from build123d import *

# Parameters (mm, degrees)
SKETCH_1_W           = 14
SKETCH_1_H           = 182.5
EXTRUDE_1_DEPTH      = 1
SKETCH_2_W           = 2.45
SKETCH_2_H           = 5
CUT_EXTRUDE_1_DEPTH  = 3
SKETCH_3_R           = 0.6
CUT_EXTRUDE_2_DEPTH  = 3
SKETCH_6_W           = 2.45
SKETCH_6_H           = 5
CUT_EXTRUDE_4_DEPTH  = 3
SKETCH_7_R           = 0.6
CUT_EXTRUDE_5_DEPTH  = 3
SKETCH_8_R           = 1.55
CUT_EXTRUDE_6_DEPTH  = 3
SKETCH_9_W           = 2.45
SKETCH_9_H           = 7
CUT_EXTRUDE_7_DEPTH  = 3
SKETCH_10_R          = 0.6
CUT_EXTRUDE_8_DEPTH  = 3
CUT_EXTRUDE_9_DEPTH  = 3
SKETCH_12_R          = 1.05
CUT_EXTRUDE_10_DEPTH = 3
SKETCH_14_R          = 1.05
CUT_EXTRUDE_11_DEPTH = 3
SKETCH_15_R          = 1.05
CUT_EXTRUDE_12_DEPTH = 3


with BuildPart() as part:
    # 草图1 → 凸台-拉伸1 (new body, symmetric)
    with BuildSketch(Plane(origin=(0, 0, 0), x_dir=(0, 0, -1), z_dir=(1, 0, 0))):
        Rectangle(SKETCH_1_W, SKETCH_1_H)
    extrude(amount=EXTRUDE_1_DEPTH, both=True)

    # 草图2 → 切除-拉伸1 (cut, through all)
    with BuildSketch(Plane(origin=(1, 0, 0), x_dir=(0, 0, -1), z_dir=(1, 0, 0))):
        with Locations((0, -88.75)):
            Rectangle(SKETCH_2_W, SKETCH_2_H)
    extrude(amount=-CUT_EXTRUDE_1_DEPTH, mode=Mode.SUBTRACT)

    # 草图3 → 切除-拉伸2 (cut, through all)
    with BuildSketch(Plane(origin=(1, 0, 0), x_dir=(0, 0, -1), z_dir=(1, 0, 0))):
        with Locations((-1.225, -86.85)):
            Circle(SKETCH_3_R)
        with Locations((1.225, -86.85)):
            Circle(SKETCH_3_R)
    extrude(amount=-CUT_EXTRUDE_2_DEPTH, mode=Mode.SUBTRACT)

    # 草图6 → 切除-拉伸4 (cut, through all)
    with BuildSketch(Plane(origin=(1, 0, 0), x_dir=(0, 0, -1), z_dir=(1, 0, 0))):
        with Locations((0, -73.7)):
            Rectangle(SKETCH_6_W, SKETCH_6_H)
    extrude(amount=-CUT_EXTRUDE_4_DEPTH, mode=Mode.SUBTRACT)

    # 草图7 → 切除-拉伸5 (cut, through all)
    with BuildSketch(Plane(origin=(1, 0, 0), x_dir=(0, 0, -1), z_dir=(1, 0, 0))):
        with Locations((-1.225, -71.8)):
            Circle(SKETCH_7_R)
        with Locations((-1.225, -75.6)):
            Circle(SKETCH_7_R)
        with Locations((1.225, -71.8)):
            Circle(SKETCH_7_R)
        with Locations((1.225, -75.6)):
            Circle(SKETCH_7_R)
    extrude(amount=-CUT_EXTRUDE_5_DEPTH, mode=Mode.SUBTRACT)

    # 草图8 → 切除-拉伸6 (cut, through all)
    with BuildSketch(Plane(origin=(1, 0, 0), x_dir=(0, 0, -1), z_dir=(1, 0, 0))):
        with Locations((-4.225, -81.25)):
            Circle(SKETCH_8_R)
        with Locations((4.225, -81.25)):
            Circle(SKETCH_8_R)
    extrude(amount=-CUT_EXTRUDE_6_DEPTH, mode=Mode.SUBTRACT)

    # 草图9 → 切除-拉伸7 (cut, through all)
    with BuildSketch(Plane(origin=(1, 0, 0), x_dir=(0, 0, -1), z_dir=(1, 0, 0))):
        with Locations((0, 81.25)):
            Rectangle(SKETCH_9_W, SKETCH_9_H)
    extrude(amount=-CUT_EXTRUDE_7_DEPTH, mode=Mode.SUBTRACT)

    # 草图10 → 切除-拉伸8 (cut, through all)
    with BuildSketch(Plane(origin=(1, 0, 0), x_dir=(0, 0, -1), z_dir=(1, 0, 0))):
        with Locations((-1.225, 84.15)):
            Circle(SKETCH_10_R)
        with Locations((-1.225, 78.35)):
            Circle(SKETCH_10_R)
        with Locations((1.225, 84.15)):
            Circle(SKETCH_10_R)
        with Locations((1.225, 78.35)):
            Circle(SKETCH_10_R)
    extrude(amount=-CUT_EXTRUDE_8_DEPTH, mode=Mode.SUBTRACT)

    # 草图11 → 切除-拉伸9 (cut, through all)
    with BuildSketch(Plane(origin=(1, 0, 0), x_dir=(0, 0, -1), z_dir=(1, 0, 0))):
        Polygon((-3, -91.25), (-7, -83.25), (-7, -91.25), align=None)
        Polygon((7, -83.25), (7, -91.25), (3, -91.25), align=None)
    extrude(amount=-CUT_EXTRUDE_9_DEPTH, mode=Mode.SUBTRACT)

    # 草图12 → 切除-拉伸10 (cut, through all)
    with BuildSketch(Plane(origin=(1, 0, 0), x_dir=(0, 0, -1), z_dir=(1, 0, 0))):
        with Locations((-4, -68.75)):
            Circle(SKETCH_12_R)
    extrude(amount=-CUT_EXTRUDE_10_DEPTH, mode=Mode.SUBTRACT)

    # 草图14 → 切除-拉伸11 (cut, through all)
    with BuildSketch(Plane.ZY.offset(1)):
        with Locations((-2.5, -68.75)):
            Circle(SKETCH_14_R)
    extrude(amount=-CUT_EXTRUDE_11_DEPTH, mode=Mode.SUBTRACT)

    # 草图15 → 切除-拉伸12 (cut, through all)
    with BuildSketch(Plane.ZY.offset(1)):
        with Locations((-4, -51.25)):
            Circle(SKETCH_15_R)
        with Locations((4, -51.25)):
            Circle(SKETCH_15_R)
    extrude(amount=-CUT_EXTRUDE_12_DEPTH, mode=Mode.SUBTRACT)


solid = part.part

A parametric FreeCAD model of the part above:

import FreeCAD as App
import Part
import Sketcher

V = App.Vector

doc = App.newDocument("Part")
body = doc.addObject("PartDesign::Body", "Body")

# Sketch on YZ plane
sketch1 = doc.addObject("Sketcher::SketchObject", "Sketch")
body.addObject(sketch1)
sketch1.AttachmentSupport = (doc.YZ_Plane, [""])
sketch1.MapMode = "FlatFace"
sketch1.addGeometry([
    Part.LineSegment(V(91, 7, 0), V(-91, 7, 0)),
    Part.LineSegment(V(-91, 7, 0), V(-91, -7, 0)),
    Part.LineSegment(V(-91, -7, 0), V(91, -7, 0)),
    Part.LineSegment(V(91, -7, 0), V(91, 7, 0)),
], False)
sketch1.addConstraint([
    Sketcher.Constraint("Coincident", 0, 2, 1, 1),
    Sketcher.Constraint("Coincident", 1, 2, 2, 1),
    Sketcher.Constraint("Coincident", 2, 2, 3, 1),
    Sketcher.Constraint("Coincident", 3, 2, 0, 1),
    Sketcher.Constraint("Horizontal", 0),
    Sketcher.Constraint("Vertical", 1),
    Sketcher.Constraint("Horizontal", 2),
    Sketcher.Constraint("Vertical", 3),
    Sketcher.Constraint("Symmetric", 0, 2, 2, 2, -1, 1),
    Sketcher.Constraint("DistanceY", 1, 2, 1, 1, 14.0),
    Sketcher.Constraint("DistanceX", 0, 2, 0, 1, 182.5),
])
pad1 = doc.addObject("PartDesign::Pad", "Pad")
body.addObject(pad1)
pad1.Profile = sketch1
pad1.Length = 2
pad1.Midplane = True

# Sketch on YZ plane
sketch2 = doc.addObject("Sketcher::SketchObject", "Sketch001")
body.addObject(sketch2)
sketch2.AttachmentSupport = (doc.YZ_Plane, [""])
sketch2.MapMode = "FlatFace"
sketch2.AttachmentOffset = App.Placement(V(0, 0, 1), App.Rotation())
sketch2.addGeometry([
    Part.LineSegment(V(-86.2, 1.2, 0), V(-91.2, 1.2, 0)),
    Part.LineSegment(V(-91.2, 1.2, 0), V(-91.2, -1.2, 0)),
    Part.LineSegment(V(-91.2, -1.2, 0), V(-86.2, -1.2, 0)),
    Part.LineSegment(V(-86.2, -1.2, 0), V(-86.2, 1.2, 0)),
], False)
sketch2.addConstraint([
    Sketcher.Constraint("Coincident", 0, 2, 1, 1),
    Sketcher.Constraint("Coincident", 1, 2, 2, 1),
    Sketcher.Constraint("Coincident", 2, 2, 3, 1),
    Sketcher.Constraint("Coincident", 3, 2, 0, 1),
    Sketcher.Constraint("Horizontal", 0),
    Sketcher.Constraint("Vertical", 1),
    Sketcher.Constraint("Horizontal", 2),
    Sketcher.Constraint("Vertical", 3),
    Sketcher.Constraint("DistanceX", 0, 2, 0, 1, 5.0),
    Sketcher.Constraint("DistanceY", 1, 2, 1, 1, 2.45),
    Sketcher.Constraint("DistanceX", 0, 2, -1, 1, 91.25),
    Sketcher.Constraint("DistanceY", -1, 1, 0, 2, 1.225),
])
pocket1 = doc.addObject("PartDesign::Pocket", "Pocket")
body.addObject(pocket1)
pocket1.Profile = sketch2
pocket1.Type = "ThroughAll"

# Sketch on YZ plane
sketch3 = doc.addObject("Sketcher::SketchObject", "Sketch002")
body.addObject(sketch3)
sketch3.AttachmentSupport = (doc.YZ_Plane, [""])
sketch3.MapMode = "FlatFace"
sketch3.AttachmentOffset = App.Placement(V(0, 0, 1), App.Rotation())
sketch3.addGeometry([
    Part.Circle(V(-86.8, 1.2, 0), V(0, 0, 1), 0.6),
    Part.Circle(V(-86.8, -1.2, 0), V(0, 0, 1), 0.6),
], False)
sketch3.addConstraint([
    Sketcher.Constraint("Equal", 0, 1),
    Sketcher.Constraint("Symmetric", 0, 3, 1, 3, -1),
    Sketcher.Constraint("Diameter", 0, 1.2),
    Sketcher.Constraint("DistanceX", 0, 3, -1, 1, 86.85),
    Sketcher.Constraint("DistanceY", 1, 3, 0, 3, 2.45),
])
pocket2 = doc.addObject("PartDesign::Pocket", "Pocket001")
body.addObject(pocket2)
pocket2.Profile = sketch3
pocket2.Type = "ThroughAll"

# Sketch on YZ plane
sketch4 = doc.addObject("Sketcher::SketchObject", "Sketch003")
body.addObject(sketch4)
sketch4.AttachmentSupport = (doc.YZ_Plane, [""])
sketch4.MapMode = "FlatFace"
sketch4.AttachmentOffset = App.Placement(V(0, 0, 1), App.Rotation())
sketch4.addGeometry([
    Part.LineSegment(V(-71.2, 1.2, 0), V(-76.2, 1.2, 0)),
    Part.LineSegment(V(-76.2, 1.2, 0), V(-76.2, -1.2, 0)),
    Part.LineSegment(V(-76.2, -1.2, 0), V(-71.2, -1.2, 0)),
    Part.LineSegment(V(-71.2, -1.2, 0), V(-71.2, 1.2, 0)),
], False)
sketch4.addConstraint([
    Sketcher.Constraint("Coincident", 0, 2, 1, 1),
    Sketcher.Constraint("Coincident", 1, 2, 2, 1),
    Sketcher.Constraint("Coincident", 2, 2, 3, 1),
    Sketcher.Constraint("Coincident", 3, 2, 0, 1),
    Sketcher.Constraint("Horizontal", 0),
    Sketcher.Constraint("Vertical", 1),
    Sketcher.Constraint("Horizontal", 2),
    Sketcher.Constraint("Vertical", 3),
    Sketcher.Constraint("DistanceX", 0, 2, 0, 1, 5.0),
    Sketcher.Constraint("DistanceY", 1, 2, 1, 1, 2.45),
    Sketcher.Constraint("DistanceX", 0, 2, -1, 1, 76.2),
    Sketcher.Constraint("DistanceY", -1, 1, 0, 2, 1.225),
])
pocket3 = doc.addObject("PartDesign::Pocket", "Pocket002")
body.addObject(pocket3)
pocket3.Profile = sketch4
pocket3.Type = "ThroughAll"

# Sketch on YZ plane
sketch5 = doc.addObject("Sketcher::SketchObject", "Sketch004")
body.addObject(sketch5)
sketch5.AttachmentSupport = (doc.YZ_Plane, [""])
sketch5.MapMode = "FlatFace"
sketch5.AttachmentOffset = App.Placement(V(0, 0, 1), App.Rotation())
sketch5.addGeometry([
    Part.Circle(V(-71.8, 1.2, 0), V(0, 0, 1), 0.6),
    Part.Circle(V(-75.6, 1.2, 0), V(0, 0, 1), 0.6),
    Part.Circle(V(-71.8, -1.2, 0), V(0, 0, 1), 0.6),
    Part.Circle(V(-75.6, -1.2, 0), V(0, 0, 1), 0.6),
], False)
sketch5.addConstraint([
    Sketcher.Constraint("Equal", 0, 1),
    Sketcher.Constraint("Equal", 1, 2),
    Sketcher.Constraint("Equal", 2, 3),
    Sketcher.Constraint("Symmetric", 0, 3, 2, 3, -1),
    Sketcher.Constraint("Symmetric", 1, 3, 3, 3, -1),
    Sketcher.Constraint("Horizontal", 0, 3, 1, 3),
    Sketcher.Constraint("Diameter", 0, 1.2),
    Sketcher.Constraint("DistanceX", 0, 3, -1, 1, 71.8),
    Sketcher.Constraint("DistanceX", 1, 3, -1, 1, 75.6),
    Sketcher.Constraint("DistanceY", 2, 3, 0, 3, 2.45),
])
pocket4 = doc.addObject("PartDesign::Pocket", "Pocket003")
body.addObject(pocket4)
pocket4.Profile = sketch5
pocket4.Type = "ThroughAll"

# Sketch on YZ plane
sketch6 = doc.addObject("Sketcher::SketchObject", "Sketch005")
body.addObject(sketch6)
sketch6.AttachmentSupport = (doc.YZ_Plane, [""])
sketch6.MapMode = "FlatFace"
sketch6.AttachmentOffset = App.Placement(V(0, 0, 1), App.Rotation())
sketch6.addGeometry([
    Part.Circle(V(-81.2, 4.2, 0), V(0, 0, 1), 1.6),
    Part.Circle(V(-81.2, -4.2, 0), V(0, 0, 1), 1.6),
], False)
sketch6.addConstraint([
    Sketcher.Constraint("Equal", 0, 1),
    Sketcher.Constraint("Symmetric", 0, 3, 1, 3, -1),
    Sketcher.Constraint("Diameter", 0, 3.1),
    Sketcher.Constraint("DistanceX", 0, 3, -1, 1, 81.25),
    Sketcher.Constraint("DistanceY", 1, 3, 0, 3, 8.45),
])
pocket5 = doc.addObject("PartDesign::Pocket", "Pocket004")
body.addObject(pocket5)
pocket5.Profile = sketch6
pocket5.Type = "ThroughAll"

# Sketch on YZ plane
sketch7 = doc.addObject("Sketcher::SketchObject", "Sketch006")
body.addObject(sketch7)
sketch7.AttachmentSupport = (doc.YZ_Plane, [""])
sketch7.MapMode = "FlatFace"
sketch7.AttachmentOffset = App.Placement(V(0, 0, 1), App.Rotation())
sketch7.addGeometry([
    Part.LineSegment(V(84.8, 1.2, 0), V(77.8, 1.2, 0)),
    Part.LineSegment(V(77.8, 1.2, 0), V(77.8, -1.2, 0)),
    Part.LineSegment(V(77.8, -1.2, 0), V(84.8, -1.2, 0)),
    Part.LineSegment(V(84.8, -1.2, 0), V(84.8, 1.2, 0)),
], False)
sketch7.addConstraint([
    Sketcher.Constraint("Coincident", 0, 2, 1, 1),
    Sketcher.Constraint("Coincident", 1, 2, 2, 1),
    Sketcher.Constraint("Coincident", 2, 2, 3, 1),
    Sketcher.Constraint("Coincident", 3, 2, 0, 1),
    Sketcher.Constraint("Horizontal", 0),
    Sketcher.Constraint("Vertical", 1),
    Sketcher.Constraint("Horizontal", 2),
    Sketcher.Constraint("Vertical", 3),
    Sketcher.Constraint("DistanceX", 0, 2, 0, 1, 7.0),
    Sketcher.Constraint("DistanceY", 1, 2, 1, 1, 2.45),
    Sketcher.Constraint("DistanceX", -1, 1, 0, 2, 77.75),
    Sketcher.Constraint("DistanceY", -1, 1, 0, 2, 1.225),
])
pocket6 = doc.addObject("PartDesign::Pocket", "Pocket005")
body.addObject(pocket6)
pocket6.Profile = sketch7
pocket6.Type = "ThroughAll"

# Sketch on YZ plane
sketch8 = doc.addObject("Sketcher::SketchObject", "Sketch007")
body.addObject(sketch8)
sketch8.AttachmentSupport = (doc.YZ_Plane, [""])
sketch8.MapMode = "FlatFace"
sketch8.AttachmentOffset = App.Placement(V(0, 0, 1), App.Rotation())
sketch8.addGeometry([
    Part.Circle(V(84.2, 1.2, 0), V(0, 0, 1), 0.6),
    Part.Circle(V(78.3, 1.2, 0), V(0, 0, 1), 0.6),
    Part.Circle(V(84.2, -1.2, 0), V(0, 0, 1), 0.6),
    Part.Circle(V(78.3, -1.2, 0), V(0, 0, 1), 0.6),
], False)
sketch8.addConstraint([
    Sketcher.Constraint("Equal", 0, 1),
    Sketcher.Constraint("Equal", 1, 2),
    Sketcher.Constraint("Equal", 2, 3),
    Sketcher.Constraint("Symmetric", 0, 3, 2, 3, -1),
    Sketcher.Constraint("Symmetric", 1, 3, 3, 3, -1),
    Sketcher.Constraint("Horizontal", 0, 3, 1, 3),
    Sketcher.Constraint("Diameter", 0, 1.2),
    Sketcher.Constraint("DistanceX", 1, 3, 0, 3, 5.8),
    Sketcher.Constraint("DistanceX", -1, 1, 0, 3, 84.15),
    Sketcher.Constraint("DistanceY", 2, 3, 0, 3, 2.45),
])
pocket7 = doc.addObject("PartDesign::Pocket", "Pocket006")
body.addObject(pocket7)
pocket7.Profile = sketch8
pocket7.Type = "ThroughAll"

# Sketch on YZ plane
sketch9 = doc.addObject("Sketcher::SketchObject", "Sketch008")
body.addObject(sketch9)
sketch9.AttachmentSupport = (doc.YZ_Plane, [""])
sketch9.MapMode = "FlatFace"
sketch9.AttachmentOffset = App.Placement(V(0, 0, 1), App.Rotation())
sketch9.addGeometry([
    Part.LineSegment(V(-91.2, 3, 0), V(-83.2, 7, 0)),  # 0
    Part.LineSegment(V(-83.2, 7, 0), V(-91.2, 7, 0)),  # 1
    Part.LineSegment(V(-91.2, 7, 0), V(-91.2, 3, 0)),  # 2
    Part.LineSegment(V(-91.2, -7, 0), V(-83.2, -7, 0)),  # 3
    Part.LineSegment(V(-83.2, -7, 0), V(-91.2, -3, 0)),  # 4
    Part.LineSegment(V(-91.2, -3, 0), V(-91.2, -7, 0)),  # 5
], False)
sketch9.addConstraint([
    Sketcher.Constraint("Coincident", 0, 2, 1, 1),
    Sketcher.Constraint("Coincident", 1, 2, 2, 1),
    Sketcher.Constraint("Coincident", 2, 2, 0, 1),
    Sketcher.Constraint("Coincident", 3, 2, 4, 1),
    Sketcher.Constraint("Coincident", 4, 2, 5, 1),
    Sketcher.Constraint("Coincident", 5, 2, 3, 1),
    Sketcher.Constraint("Horizontal", 1),
    Sketcher.Constraint("Vertical", 2),
    Sketcher.Constraint("Horizontal", 3),
    Sketcher.Constraint("Vertical", 5),
    Sketcher.Constraint("Symmetric", 0, 2, 3, 2, -1),
    Sketcher.Constraint("Symmetric", 2, 2, 4, 2, -1),
    Sketcher.Constraint("DistanceX", 1, 2, 1, 1, 8.0),
    Sketcher.Constraint("DistanceY", 2, 2, 2, 1, 4.0),
    Sketcher.Constraint("DistanceY", -1, 1, 0, 2, 7.0),
    Sketcher.Constraint("DistanceX", 0, 2, -1, 1, 83.25),
])
pocket8 = doc.addObject("PartDesign::Pocket", "Pocket007")
body.addObject(pocket8)
pocket8.Profile = sketch9
pocket8.Type = "ThroughAll"

# Sketch on YZ plane
sketch10 = doc.addObject("Sketcher::SketchObject", "Sketch009")
body.addObject(sketch10)
sketch10.AttachmentSupport = (doc.YZ_Plane, [""])
sketch10.MapMode = "FlatFace"
sketch10.AttachmentOffset = App.Placement(V(0, 0, 1), App.Rotation())
sketch10.addGeometry(Part.Circle(V(-68.8, 4, 0), V(0, 0, 1), 1.1), False)
sketch10.addConstraint([
    Sketcher.Constraint("Diameter", 0, 2.1),
    Sketcher.Constraint("DistanceY", -1, 1, 0, 3, 4.0),
    Sketcher.Constraint("DistanceX", 0, 3, -1, 1, 68.75),
])
pocket9 = doc.addObject("PartDesign::Pocket", "Pocket008")
body.addObject(pocket9)
pocket9.Profile = sketch10
pocket9.Type = "ThroughAll"

# Sketch on YZ plane
sketch11 = doc.addObject("Sketcher::SketchObject", "Sketch010")
body.addObject(sketch11)
sketch11.AttachmentSupport = (doc.YZ_Plane, [""])
sketch11.MapMode = "FlatFace"
sketch11.AttachmentOffset = App.Placement(V(0, 0, -1), App.Rotation())
sketch11.addGeometry(Part.Circle(V(-68.8, -2.5, 0), V(0, 0, 1), 1.1), False)
sketch11.addConstraint([
    Sketcher.Constraint("Diameter", 0, 2.1),
    Sketcher.Constraint("DistanceY", 0, 3, -1, 1, 2.5),
    Sketcher.Constraint("DistanceX", 0, 3, -1, 1, 68.75),
])
pocket10 = doc.addObject("PartDesign::Pocket", "Pocket009")
body.addObject(pocket10)
pocket10.Profile = sketch11
pocket10.Type = "ThroughAll"
pocket10.Reversed = True

# Sketch on YZ plane
sketch12 = doc.addObject("Sketcher::SketchObject", "Sketch011")
body.addObject(sketch12)
sketch12.AttachmentSupport = (doc.YZ_Plane, [""])
sketch12.MapMode = "FlatFace"
sketch12.AttachmentOffset = App.Placement(V(0, 0, -1), App.Rotation())
sketch12.addGeometry([
    Part.Circle(V(-51.2, -4, 0), V(0, 0, 1), 1.1),
    Part.Circle(V(-51.2, 4, 0), V(0, 0, 1), 1.1),
], False)
sketch12.addConstraint([
    Sketcher.Constraint("Equal", 0, 1),
    Sketcher.Constraint("Symmetric", 0, 3, 1, 3, -1),
    Sketcher.Constraint("Diameter", 0, 2.1),
    Sketcher.Constraint("DistanceY", 0, 3, -1, 1, 4.0),
    Sketcher.Constraint("DistanceX", 0, 3, -1, 1, 51.25),
])
pocket11 = doc.addObject("PartDesign::Pocket", "Pocket010")
body.addObject(pocket11)
pocket11.Profile = sketch12
pocket11.Type = "ThroughAll"
pocket11.Reversed = True

doc.recompute()
